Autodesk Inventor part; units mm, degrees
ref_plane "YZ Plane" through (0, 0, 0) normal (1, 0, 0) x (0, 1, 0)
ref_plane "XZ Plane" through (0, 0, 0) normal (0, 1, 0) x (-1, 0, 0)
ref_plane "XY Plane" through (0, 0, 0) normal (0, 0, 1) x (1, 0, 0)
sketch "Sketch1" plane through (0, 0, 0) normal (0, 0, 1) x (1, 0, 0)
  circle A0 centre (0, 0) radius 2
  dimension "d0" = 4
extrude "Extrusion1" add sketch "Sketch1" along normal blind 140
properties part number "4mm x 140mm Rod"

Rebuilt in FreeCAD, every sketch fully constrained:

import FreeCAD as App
import Part
import Sketcher

V = App.Vector
Q = App.Units.Quantity

doc = App.newDocument("Part")
params = doc.addObject("Spreadsheet::Sheet", "Params")
for row, (alias, value) in enumerate([
    ("sketch1_diameter", "4 mm"),
    ("pad1_length", "140 mm"),
], start=1):
    params.set(f"A{row}", alias)
    params.set(f"B{row}", "=" + value)
    params.setAlias(f"B{row}", alias)

body = doc.addObject("PartDesign::Body", "Body")

# Sketch on XY plane
sketch1 = doc.addObject("Sketcher::SketchObject", "Sketch")
body.addObject(sketch1)
sketch1.AttachmentSupport = (doc.XY_Plane, [""])
sketch1.MapMode = "FlatFace"
sketch1.addGeometry(Part.Circle(V(0, 0, 0), V(0, 0, 1), 2), False)
sketch1.addConstraint([
    Sketcher.Constraint("Coincident", 0, 3, -1, 1),
    Sketcher.Constraint("Diameter", 0, Q("4 mm")),
])
sketch1.setExpression("Constraints[1]", "Params.sketch1_diameter")
pad1 = doc.addObject("PartDesign::Pad", "Pad")
body.addObject(pad1)
pad1.Profile = sketch1
pad1.setExpression("Length", "Params.pad1_length")

doc.recompute()
